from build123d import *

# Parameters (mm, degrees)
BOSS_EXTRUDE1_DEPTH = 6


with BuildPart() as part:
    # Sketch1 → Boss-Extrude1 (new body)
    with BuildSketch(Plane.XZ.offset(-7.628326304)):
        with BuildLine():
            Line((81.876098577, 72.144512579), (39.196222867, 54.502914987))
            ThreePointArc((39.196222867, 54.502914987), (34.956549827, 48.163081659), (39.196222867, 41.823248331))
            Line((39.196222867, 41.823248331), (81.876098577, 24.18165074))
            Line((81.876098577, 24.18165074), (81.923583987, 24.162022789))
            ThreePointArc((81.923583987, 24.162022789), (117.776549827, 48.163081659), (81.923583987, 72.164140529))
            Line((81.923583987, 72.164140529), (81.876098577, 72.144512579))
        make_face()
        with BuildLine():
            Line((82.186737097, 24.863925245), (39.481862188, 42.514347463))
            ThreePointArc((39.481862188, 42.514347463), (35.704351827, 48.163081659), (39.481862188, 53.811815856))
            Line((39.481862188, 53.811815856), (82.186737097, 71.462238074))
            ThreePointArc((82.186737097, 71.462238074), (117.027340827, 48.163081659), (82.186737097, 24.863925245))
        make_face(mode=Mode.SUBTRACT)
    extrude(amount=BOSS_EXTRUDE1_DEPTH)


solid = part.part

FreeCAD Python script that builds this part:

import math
import FreeCAD as App
import Part
import Sketcher
from FreeCAD import Vector
Q = App.Units.Quantity

doc = App.newDocument("Part")
body = doc.addObject("PartDesign::Body", "Body")

# Sketch on XZ plane
sketch1 = body.newObject("Sketcher::SketchObject", "Sketch")
sketch1.AttachmentSupport = (doc.getObject("XZ_Plane"), [""])
sketch1.MapMode = "FlatFace"
sketch1.AttachmentOffset = App.Placement(Vector(0, 0, -7.628326), App.Rotation())
sketch1.addGeometry([
    Part.LineSegment(Vector(81.876099, 72.144513, 0), Vector(39.196223, 54.502915, 0)),  # 0
    Part.ArcOfCircle(Part.Circle(Vector(41.81655, 48.163082, 0), Vector(0, 0, 1), 6.86), math.radians(112.455878), math.radians(247.544122)),  # 1
    Part.LineSegment(Vector(39.196223, 41.823248, 0), Vector(81.876099, 24.181651, 0)),  # 2
    Part.LineSegment(Vector(81.876099, 24.181651, 0), Vector(81.923584, 24.162023, 0)),  # 3
    Part.ArcOfCircle(Part.Circle(Vector(91.81655, 48.163082, 0), Vector(0, 0, 1), 25.96), math.radians(-112.400904), math.radians(112.400904)),  # 4
    Part.LineSegment(Vector(81.923584, 72.164141, 0), Vector(81.876099, 72.144513, 0)),  # 5
    Part.ArcOfCircle(Part.Circle(Vector(91.81655, 48.163082, 0), Vector(0, 0, 1), 25.210791), math.radians(-112.455878), math.radians(112.455878)),  # 6
    Part.LineSegment(Vector(82.186737, 24.863925, 0), Vector(39.481862, 42.514347, 0)),  # 7
    Part.ArcOfCircle(Part.Circle(Vector(41.81655, 48.163082, 0), Vector(0, 0, 1), 6.112198), math.radians(112.455878), math.radians(247.544122)),  # 8
    Part.LineSegment(Vector(39.481862, 53.811816, 0), Vector(82.186737, 71.462238, 0)),  # 9
], False)
sketch1.addConstraint([
    Sketcher.Constraint("Coincident", 0, 2, 1, 1),
    Sketcher.Constraint("Coincident", 1, 2, 2, 1),
    Sketcher.Constraint("Coincident", 2, 2, 3, 1),
    Sketcher.Constraint("Coincident", 3, 2, 4, 1),
    Sketcher.Constraint("Coincident", 4, 2, 5, 1),
    Sketcher.Constraint("Coincident", 5, 2, 0, 1),
    Sketcher.Constraint("Tangent", 6, 1, 7, 1),
    Sketcher.Constraint("Tangent", 7, 2, 8, 2),
    Sketcher.Constraint("Tangent", 8, 1, 9, 1),
    Sketcher.Constraint("Tangent", 9, 2, 6, 2),
    Sketcher.Constraint("Coincident", 6, 3, 4, 3),
    Sketcher.Constraint("Coincident", 8, 3, 1, 3),
    Sketcher.Constraint("Parallel", 2, 3),
    Sketcher.Constraint("Parallel", 0, 5),
    Sketcher.Constraint("Horizontal", 1, 3, 4, 3),
    Sketcher.Constraint("Vertical", 0, 2, 1, 2),
    Sketcher.Constraint("Vertical", 3, 2, 4, 2),
    Sketcher.Constraint("Vertical", 2, 2, 5, 2),
    Sketcher.Constraint("Radius", 1, Q("6.86 mm")),
    Sketcher.Constraint("Radius", 4, Q("25.96 mm")),
    Sketcher.Constraint("DistanceX", 1, 3, 4, 3, Q("50 mm")),
    Sketcher.Constraint("Radius", 8, Q("6.112198 mm")),
    Sketcher.Constraint("Radius", 6, Q("25.210791 mm")),
    Sketcher.Constraint("DistanceX", -1, 1, 2, 2, Q("81.876099 mm")),
    Sketcher.Constraint("DistanceY", 1, 2, 7, 2, Q("0.691099 mm")),
    Sketcher.Constraint("DistanceX", -1, 1, 1, 3, Q("41.81655 mm")),
    Sketcher.Constraint("DistanceY", -1, 1, 1, 3, Q("48.163082 mm")),
    Sketcher.Constraint("DistanceY", -1, 1, 4, 2, Q("72.164141 mm")),
])
pad1 = body.newObject("PartDesign::Pad", "Pad")
pad1.Profile = sketch1
pad1.Length = 6

doc.recompute()
